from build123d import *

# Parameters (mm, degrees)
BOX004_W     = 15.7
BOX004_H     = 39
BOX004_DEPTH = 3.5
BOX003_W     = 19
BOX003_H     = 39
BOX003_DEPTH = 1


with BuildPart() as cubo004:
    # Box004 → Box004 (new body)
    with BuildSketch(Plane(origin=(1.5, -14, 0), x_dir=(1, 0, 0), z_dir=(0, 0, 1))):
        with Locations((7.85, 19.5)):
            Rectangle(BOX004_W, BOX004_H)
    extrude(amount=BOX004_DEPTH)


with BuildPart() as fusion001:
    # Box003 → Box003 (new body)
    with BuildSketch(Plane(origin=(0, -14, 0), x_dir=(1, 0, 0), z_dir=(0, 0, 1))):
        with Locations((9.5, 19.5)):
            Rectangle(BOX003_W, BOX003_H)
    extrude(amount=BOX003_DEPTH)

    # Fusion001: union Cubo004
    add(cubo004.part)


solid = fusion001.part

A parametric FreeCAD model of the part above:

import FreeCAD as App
import Part
import Sketcher

doc = App.newDocument("Part")
body = doc.addObject("PartDesign::Body", "Body")

sketch1 = doc.addObject("Sketcher::SketchObject", "Sketch")
body.addObject(sketch1)
sketch1.AttachmentSupport = (doc.XY_Plane, [""])
sketch1.MapMode = "FlatFace"
sketch1.addGeometry(Part.LineSegment(App.Vector(1.5, 25, 0), App.Vector(1.5, -14, 0)), False)
sketch1.addGeometry(Part.LineSegment(App.Vector(1.5, -14, 0), App.Vector(17.2, -14, 0)), False)
sketch1.addGeometry(Part.LineSegment(App.Vector(17.2, -14, 0), App.Vector(17.2, 25, 0)), False)
sketch1.addGeometry(Part.LineSegment(App.Vector(17.2, 25, 0), App.Vector(1.5, 25, 0)), False)
sketch1.addConstraint(Sketcher.Constraint("Coincident", 0, 2, 1, 1))
sketch1.addConstraint(Sketcher.Constraint("Coincident", 1, 2, 2, 1))
sketch1.addConstraint(Sketcher.Constraint("Coincident", 2, 2, 3, 1))
sketch1.addConstraint(Sketcher.Constraint("Coincident", 3, 2, 0, 1))
sketch1.addConstraint(Sketcher.Constraint("Vertical", 0))
sketch1.addConstraint(Sketcher.Constraint("Horizontal", 1))
sketch1.addConstraint(Sketcher.Constraint("Vertical", 2))
sketch1.addConstraint(Sketcher.Constraint("Horizontal", 3))
sketch1.addConstraint(Sketcher.Constraint("DistanceY", 0, 2, 0, 1, 39.0))
sketch1.addConstraint(Sketcher.Constraint("DistanceX", 1, 1, 1, 2, 15.7))
sketch1.addConstraint(Sketcher.Constraint("DistanceY", 0, 2, -1, 1, 14.0))
sketch1.addConstraint(Sketcher.Constraint("DistanceX", -1, 1, 0, 2, 1.5))
pad1 = doc.addObject("PartDesign::Pad", "Pad")
body.addObject(pad1)
pad1.Profile = sketch1
pad1.Length = 3.5
body2 = doc.addObject("PartDesign::Body", "Body001")

sketch2 = doc.addObject("Sketcher::SketchObject", "Sketch001")
body2.addObject(sketch2)
sketch2.AttachmentSupport = (doc.getObject("XY_Plane001"), [""])
sketch2.MapMode = "FlatFace"
sketch2.addGeometry(Part.LineSegment(App.Vector(0, 25, 0), App.Vector(0, -14, 0)), False)
sketch2.addGeometry(Part.LineSegment(App.Vector(0, -14, 0), App.Vector(19, -14, 0)), False)
sketch2.addGeometry(Part.LineSegment(App.Vector(19, -14, 0), App.Vector(19, 25, 0)), False)
sketch2.addGeometry(Part.LineSegment(App.Vector(19, 25, 0), App.Vector(0, 25, 0)), False)
sketch2.addConstraint(Sketcher.Constraint("Coincident", 0, 2, 1, 1))
sketch2.addConstraint(Sketcher.Constraint("Coincident", 1, 2, 2, 1))
sketch2.addConstraint(Sketcher.Constraint("Coincident", 2, 2, 3, 1))
sketch2.addConstraint(Sketcher.Constraint("Coincident", 3, 2, 0, 1))
sketch2.addConstraint(Sketcher.Constraint("Vertical", 0))
sketch2.addConstraint(Sketcher.Constraint("Horizontal", 1))
sketch2.addConstraint(Sketcher.Constraint("Vertical", 2))
sketch2.addConstraint(Sketcher.Constraint("Horizontal", 3))
sketch2.addConstraint(Sketcher.Constraint("PointOnObject", 0, 2, -2))
sketch2.addConstraint(Sketcher.Constraint("DistanceX", 1, 1, 1, 2, 19.0))
sketch2.addConstraint(Sketcher.Constraint("DistanceY", 0, 2, 0, 1, 39.0))
sketch2.addConstraint(Sketcher.Constraint("DistanceY", 0, 2, -1, 1, 14.0))
pad2 = doc.addObject("PartDesign::Pad", "Pad001")
body2.addObject(pad2)
pad2.Profile = sketch2
pad2.Length = 1
doc.recompute()

boolean = doc.addObject("PartDesign::Boolean", "Boolean")
body2.addObject(boolean)
boolean.Type = "Fuse"
boolean.addObjects([body])

doc.recompute()
